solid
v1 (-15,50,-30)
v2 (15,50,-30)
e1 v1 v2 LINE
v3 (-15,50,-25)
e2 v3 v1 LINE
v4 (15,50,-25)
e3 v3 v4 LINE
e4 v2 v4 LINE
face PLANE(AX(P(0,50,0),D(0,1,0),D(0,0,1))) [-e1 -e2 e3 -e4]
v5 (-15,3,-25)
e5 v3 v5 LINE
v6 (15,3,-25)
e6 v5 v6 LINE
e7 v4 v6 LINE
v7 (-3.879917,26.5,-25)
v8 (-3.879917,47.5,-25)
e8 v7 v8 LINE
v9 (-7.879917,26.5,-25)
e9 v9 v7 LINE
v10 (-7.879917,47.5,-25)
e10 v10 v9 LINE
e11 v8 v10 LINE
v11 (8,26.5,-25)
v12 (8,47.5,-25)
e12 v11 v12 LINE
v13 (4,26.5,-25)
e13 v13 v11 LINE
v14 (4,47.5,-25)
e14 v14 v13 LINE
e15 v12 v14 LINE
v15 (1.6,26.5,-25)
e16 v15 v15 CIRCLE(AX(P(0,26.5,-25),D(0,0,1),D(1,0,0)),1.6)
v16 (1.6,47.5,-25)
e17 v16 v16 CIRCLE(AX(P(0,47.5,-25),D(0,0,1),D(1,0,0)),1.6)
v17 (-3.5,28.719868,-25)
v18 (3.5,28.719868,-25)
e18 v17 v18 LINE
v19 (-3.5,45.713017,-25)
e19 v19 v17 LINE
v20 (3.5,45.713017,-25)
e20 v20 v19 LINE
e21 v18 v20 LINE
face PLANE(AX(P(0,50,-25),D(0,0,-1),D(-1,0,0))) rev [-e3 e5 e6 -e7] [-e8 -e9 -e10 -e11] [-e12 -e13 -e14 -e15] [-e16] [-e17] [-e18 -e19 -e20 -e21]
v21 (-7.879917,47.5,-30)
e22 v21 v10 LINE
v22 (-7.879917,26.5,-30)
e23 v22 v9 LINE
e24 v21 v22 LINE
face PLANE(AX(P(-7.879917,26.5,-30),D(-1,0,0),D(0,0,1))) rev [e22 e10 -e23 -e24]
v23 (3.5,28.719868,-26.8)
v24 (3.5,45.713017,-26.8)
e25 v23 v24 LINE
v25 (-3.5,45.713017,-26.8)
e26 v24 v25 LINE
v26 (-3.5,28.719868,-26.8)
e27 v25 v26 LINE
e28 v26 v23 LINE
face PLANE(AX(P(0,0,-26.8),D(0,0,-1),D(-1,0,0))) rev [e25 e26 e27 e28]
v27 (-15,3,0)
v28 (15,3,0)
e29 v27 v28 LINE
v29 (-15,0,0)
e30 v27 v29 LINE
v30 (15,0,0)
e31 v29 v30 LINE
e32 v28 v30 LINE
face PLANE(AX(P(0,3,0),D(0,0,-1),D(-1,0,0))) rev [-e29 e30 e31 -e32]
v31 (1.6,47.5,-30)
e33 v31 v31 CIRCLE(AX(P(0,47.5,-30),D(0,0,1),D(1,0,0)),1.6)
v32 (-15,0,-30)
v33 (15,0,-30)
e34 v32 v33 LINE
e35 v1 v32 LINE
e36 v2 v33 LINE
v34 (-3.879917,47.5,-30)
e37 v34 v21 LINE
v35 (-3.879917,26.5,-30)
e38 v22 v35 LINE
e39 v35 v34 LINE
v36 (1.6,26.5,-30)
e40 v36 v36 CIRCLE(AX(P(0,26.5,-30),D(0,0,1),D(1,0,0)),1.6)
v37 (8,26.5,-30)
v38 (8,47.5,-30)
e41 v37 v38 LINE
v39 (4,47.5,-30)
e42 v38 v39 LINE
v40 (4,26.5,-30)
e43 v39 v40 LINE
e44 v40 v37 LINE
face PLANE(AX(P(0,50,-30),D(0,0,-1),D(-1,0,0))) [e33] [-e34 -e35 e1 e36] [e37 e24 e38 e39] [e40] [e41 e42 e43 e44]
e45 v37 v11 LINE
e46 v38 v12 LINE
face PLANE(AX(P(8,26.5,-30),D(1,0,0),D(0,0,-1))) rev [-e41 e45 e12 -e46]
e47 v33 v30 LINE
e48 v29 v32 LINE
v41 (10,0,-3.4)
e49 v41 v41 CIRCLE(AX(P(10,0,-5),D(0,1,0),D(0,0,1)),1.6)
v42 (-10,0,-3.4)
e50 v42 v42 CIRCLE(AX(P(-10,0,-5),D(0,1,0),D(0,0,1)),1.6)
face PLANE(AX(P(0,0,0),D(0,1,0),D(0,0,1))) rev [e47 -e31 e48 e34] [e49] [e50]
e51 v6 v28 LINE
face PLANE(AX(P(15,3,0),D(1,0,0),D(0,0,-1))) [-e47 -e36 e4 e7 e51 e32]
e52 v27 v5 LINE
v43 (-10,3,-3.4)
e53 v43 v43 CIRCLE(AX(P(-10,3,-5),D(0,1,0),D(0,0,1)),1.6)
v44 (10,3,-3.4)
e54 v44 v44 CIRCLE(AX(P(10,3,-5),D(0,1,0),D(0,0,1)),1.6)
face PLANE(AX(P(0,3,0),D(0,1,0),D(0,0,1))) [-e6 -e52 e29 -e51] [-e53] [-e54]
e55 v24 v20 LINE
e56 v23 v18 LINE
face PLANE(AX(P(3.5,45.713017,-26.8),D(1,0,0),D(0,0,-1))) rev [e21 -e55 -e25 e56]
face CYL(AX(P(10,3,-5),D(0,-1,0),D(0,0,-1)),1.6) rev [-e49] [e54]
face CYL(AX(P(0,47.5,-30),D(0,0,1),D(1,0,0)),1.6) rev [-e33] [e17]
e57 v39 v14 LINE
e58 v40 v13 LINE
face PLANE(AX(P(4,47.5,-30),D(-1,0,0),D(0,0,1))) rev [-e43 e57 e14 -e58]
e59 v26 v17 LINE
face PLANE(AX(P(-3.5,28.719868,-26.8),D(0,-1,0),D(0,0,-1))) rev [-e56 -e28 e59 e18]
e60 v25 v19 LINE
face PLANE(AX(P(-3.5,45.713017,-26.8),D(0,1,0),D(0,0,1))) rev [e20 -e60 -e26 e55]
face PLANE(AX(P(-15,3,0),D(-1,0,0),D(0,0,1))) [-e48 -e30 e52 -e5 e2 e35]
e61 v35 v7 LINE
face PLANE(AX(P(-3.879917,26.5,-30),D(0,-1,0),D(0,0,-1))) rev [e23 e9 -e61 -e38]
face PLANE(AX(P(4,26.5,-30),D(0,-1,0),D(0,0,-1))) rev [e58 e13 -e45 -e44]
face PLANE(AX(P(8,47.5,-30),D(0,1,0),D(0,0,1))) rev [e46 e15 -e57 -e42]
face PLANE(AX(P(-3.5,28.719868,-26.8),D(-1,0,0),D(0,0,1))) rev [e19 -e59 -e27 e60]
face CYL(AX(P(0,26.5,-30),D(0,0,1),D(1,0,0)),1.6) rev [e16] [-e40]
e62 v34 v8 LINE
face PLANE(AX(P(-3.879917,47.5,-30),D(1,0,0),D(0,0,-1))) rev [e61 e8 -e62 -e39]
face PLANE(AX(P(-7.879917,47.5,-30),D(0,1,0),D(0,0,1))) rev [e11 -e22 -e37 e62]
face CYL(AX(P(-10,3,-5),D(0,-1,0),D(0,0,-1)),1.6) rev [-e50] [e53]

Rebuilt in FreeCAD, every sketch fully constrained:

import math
import FreeCAD as App
import Part
import Sketcher
Q = App.Units.Quantity


def add_polygon(sketch, points):
    """Adds a closed chain of lines whose ends are joined by coincident constraints."""
    first, n = sketch.GeometryCount, len(points)
    for a, b in zip(points, points[1:] + points[:1]):
        sketch.addGeometry(Part.LineSegment(App.Vector(*a, 0), App.Vector(*b, 0)), False)
    for i in range(n):
        sketch.addConstraint(Sketcher.Constraint("Coincident", first + i, 2, first + (i + 1) % n, 1))

doc = App.newDocument("Part")
body = doc.addObject("PartDesign::Body", "Body")

# Sketch on XZ plane
sketch1 = body.newObject("Sketcher::SketchObject", "Sketch")
sketch1.AttachmentSupport = (doc.getObject("XZ_Plane"), [""])
sketch1.MapMode = "FlatFace"
add_polygon(sketch1, [(15, 0), (15, -25), (-15, -25), (-15, 0)])  # lines 0-3
sketch1.addGeometry(Part.Circle(App.Vector(-10, -5, 0), App.Vector(0, 0, 1), 1.6), False)  # 4
sketch1.addGeometry(Part.ArcOfCircle(Part.Circle(App.Vector(10, -5, 0), App.Vector(0, 0, 1), 1.6), math.radians(-90), math.radians(0)), False)  # 5
sketch1.addGeometry(Part.ArcOfCircle(Part.Circle(App.Vector(10, -5, 0), App.Vector(0, 0, 1), 1.6), math.radians(0), math.radians(270)), False)  # 6
sketch1.addConstraint(Sketcher.Constraint("Tangent", 5, 1, 6, 2))
sketch1.addConstraint(Sketcher.Constraint("Coincident", 6, 1, 5, 2))
sketch1.addConstraint(Sketcher.Constraint("Vertical", 0))
sketch1.addConstraint(Sketcher.Constraint("Horizontal", 1))
sketch1.addConstraint(Sketcher.Constraint("Vertical", 2))
sketch1.addConstraint(Sketcher.Constraint("Horizontal", 3))
sketch1.addConstraint(Sketcher.Constraint("Equal", 4, 5))
sketch1.addConstraint(Sketcher.Constraint("Symmetric", 2, 2, 3, 2, -1, 1))
sketch1.addConstraint(Sketcher.Constraint("Symmetric", 4, 3, 5, 3, -2))
sketch1.addConstraint(Sketcher.Constraint("Horizontal", 5, 3, 6, 1))
sketch1.addConstraint(Sketcher.Constraint("Vertical", 6, 3, 5, 1))
sketch1.addConstraint(Sketcher.Constraint("Diameter", 4, Q("3.2 mm")))
sketch1.addConstraint(Sketcher.Constraint("DistanceX", 1, 2, 1, 1, Q("30 mm")))
sketch1.addConstraint(Sketcher.Constraint("DistanceY", 0, 2, 0, 1, Q("25 mm")))
sketch1.addConstraint(Sketcher.Constraint("DistanceX", 4, 3, -1, 1, Q("10 mm")))
sketch1.addConstraint(Sketcher.Constraint("DistanceY", 4, 3, -1, 1, Q("5 mm")))
pad1 = body.newObject("PartDesign::Pad", "Pad")
pad1.Profile = sketch1
pad1.Length = 3
pad1.Reversed = True

# Sketch on XZ plane
sketch2 = body.newObject("Sketcher::SketchObject", "Sketch001")
sketch2.AttachmentSupport = (doc.getObject("XZ_Plane"), [""])
sketch2.MapMode = "FlatFace"
add_polygon(sketch2, [(15, -25), (15, -30), (-15, -30), (-15, -25)])  # lines 0-3
sketch2.addConstraint(Sketcher.Constraint("Vertical", 0))
sketch2.addConstraint(Sketcher.Constraint("Horizontal", 1))
sketch2.addConstraint(Sketcher.Constraint("Vertical", 2))
sketch2.addConstraint(Sketcher.Constraint("Horizontal", 3))
sketch2.addConstraint(Sketcher.Constraint("DistanceX", 1, 2, 1, 1, Q("30 mm")))
sketch2.addConstraint(Sketcher.Constraint("DistanceY", 0, 2, 0, 1, Q("5 mm")))
sketch2.addConstraint(Sketcher.Constraint("DistanceX", -1, 1, 0, 2, Q("15 mm")))
sketch2.addConstraint(Sketcher.Constraint("DistanceY", 0, 2, -1, 1, Q("30 mm")))
pad2 = body.newObject("PartDesign::Pad", "Pad001")
pad2.Profile = sketch2
pad2.Length = 50
pad2.Reversed = True

# Sketch on XY plane
sketch3 = body.newObject("Sketcher::SketchObject", "Sketch002")
sketch3.AttachmentSupport = (doc.getObject("XY_Plane"), [""])
sketch3.MapMode = "FlatFace"
sketch3.AttachmentOffset = App.Placement(App.Vector(0, 0, -25), App.Rotation())
sketch3.addGeometry(Part.Circle(App.Vector(0, 47.5, 0), App.Vector(0, 0, 1), 1.6), False)  # 0
sketch3.addGeometry(Part.Circle(App.Vector(0, 26.5, 0), App.Vector(0, 0, 1), 1.6), False)  # 1
add_polygon(sketch3, [(4, 47.5), (4, 26.5), (8, 26.5), (8, 47.5)])  # lines 2-5
add_polygon(sketch3, [(-7.9, 47.5), (-7.9, 26.5), (-3.9, 26.5), (-3.9, 47.5)])  # lines 6-9
sketch3.addConstraint(Sketcher.Constraint("Vertical", 2))
sketch3.addConstraint(Sketcher.Constraint("Horizontal", 3))
sketch3.addConstraint(Sketcher.Constraint("Vertical", 4))
sketch3.addConstraint(Sketcher.Constraint("Horizontal", 5))
sketch3.addConstraint(Sketcher.Constraint("Vertical", 6))
sketch3.addConstraint(Sketcher.Constraint("Horizontal", 7))
sketch3.addConstraint(Sketcher.Constraint("Vertical", 8))
sketch3.addConstraint(Sketcher.Constraint("Horizontal", 9))
sketch3.addConstraint(Sketcher.Constraint("Equal", 0, 1))
sketch3.addConstraint(Sketcher.Constraint("PointOnObject", 0, 3, -2))
sketch3.addConstraint(Sketcher.Constraint("PointOnObject", 1, 3, -2))
sketch3.addConstraint(Sketcher.Constraint("Horizontal", 1, 3, 2, 2))
sketch3.addConstraint(Sketcher.Constraint("Horizontal", 0, 3, 4, 2))
sketch3.addConstraint(Sketcher.Constraint("Horizontal", 3, 2, 6, 2))
sketch3.addConstraint(Sketcher.Constraint("Horizontal", 5, 2, 8, 2))
sketch3.addConstraint(Sketcher.Constraint("Equal", 5, 7))
sketch3.addConstraint(Sketcher.Constraint("Diameter", 0, Q("3.2 mm")))
sketch3.addConstraint(Sketcher.Constraint("DistanceX", 3, 1, 3, 2, Q("4 mm")))
sketch3.addConstraint(Sketcher.Constraint("DistanceY", 2, 2, 2, 1, Q("21 mm")))
sketch3.addConstraint(Sketcher.Constraint("DistanceX", -1, 1, 2, 2, Q("4 mm")))
sketch3.addConstraint(Sketcher.Constraint("DistanceY", -1, 1, 0, 3, Q("47.5 mm")))
sketch3.addConstraint(Sketcher.Constraint("DistanceX", 6, 2, -1, 1, Q("7.879917 mm")))
pocket1 = body.newObject("PartDesign::Pocket", "Pocket")
pocket1.Profile = sketch3
pocket1.Type = "ThroughAll"

# Sketch on XY plane
sketch4 = body.newObject("Sketcher::SketchObject", "Sketch003")
sketch4.AttachmentSupport = (doc.getObject("XY_Plane"), [""])
sketch4.MapMode = "FlatFace"
sketch4.AttachmentOffset = App.Placement(App.Vector(0, 0, -25), App.Rotation())
add_polygon(sketch4, [(-4, 46), (-4, 29), (4, 29), (4, 46)])  # lines 0-3
sketch4.addConstraint(Sketcher.Constraint("Vertical", 0))
sketch4.addConstraint(Sketcher.Constraint("Horizontal", 1))
sketch4.addConstraint(Sketcher.Constraint("Vertical", 2))
sketch4.addConstraint(Sketcher.Constraint("Horizontal", 3))
sketch4.addConstraint(Sketcher.Constraint("DistanceX", 1, 1, 1, 2, Q("7 mm")))
sketch4.addConstraint(Sketcher.Constraint("DistanceX", 0, 2, -1, 1, Q("3.5 mm")))
sketch4.addConstraint(Sketcher.Constraint("DistanceY", 0, 2, 0, 1, Q("16.993149 mm")))
sketch4.addConstraint(Sketcher.Constraint("DistanceY", -1, 1, 0, 2, Q("28.719868 mm")))
pocket2 = body.newObject("PartDesign::Pocket", "Pocket001")
pocket2.Profile = sketch4
pocket2.Length = 1.8

doc.recompute()
